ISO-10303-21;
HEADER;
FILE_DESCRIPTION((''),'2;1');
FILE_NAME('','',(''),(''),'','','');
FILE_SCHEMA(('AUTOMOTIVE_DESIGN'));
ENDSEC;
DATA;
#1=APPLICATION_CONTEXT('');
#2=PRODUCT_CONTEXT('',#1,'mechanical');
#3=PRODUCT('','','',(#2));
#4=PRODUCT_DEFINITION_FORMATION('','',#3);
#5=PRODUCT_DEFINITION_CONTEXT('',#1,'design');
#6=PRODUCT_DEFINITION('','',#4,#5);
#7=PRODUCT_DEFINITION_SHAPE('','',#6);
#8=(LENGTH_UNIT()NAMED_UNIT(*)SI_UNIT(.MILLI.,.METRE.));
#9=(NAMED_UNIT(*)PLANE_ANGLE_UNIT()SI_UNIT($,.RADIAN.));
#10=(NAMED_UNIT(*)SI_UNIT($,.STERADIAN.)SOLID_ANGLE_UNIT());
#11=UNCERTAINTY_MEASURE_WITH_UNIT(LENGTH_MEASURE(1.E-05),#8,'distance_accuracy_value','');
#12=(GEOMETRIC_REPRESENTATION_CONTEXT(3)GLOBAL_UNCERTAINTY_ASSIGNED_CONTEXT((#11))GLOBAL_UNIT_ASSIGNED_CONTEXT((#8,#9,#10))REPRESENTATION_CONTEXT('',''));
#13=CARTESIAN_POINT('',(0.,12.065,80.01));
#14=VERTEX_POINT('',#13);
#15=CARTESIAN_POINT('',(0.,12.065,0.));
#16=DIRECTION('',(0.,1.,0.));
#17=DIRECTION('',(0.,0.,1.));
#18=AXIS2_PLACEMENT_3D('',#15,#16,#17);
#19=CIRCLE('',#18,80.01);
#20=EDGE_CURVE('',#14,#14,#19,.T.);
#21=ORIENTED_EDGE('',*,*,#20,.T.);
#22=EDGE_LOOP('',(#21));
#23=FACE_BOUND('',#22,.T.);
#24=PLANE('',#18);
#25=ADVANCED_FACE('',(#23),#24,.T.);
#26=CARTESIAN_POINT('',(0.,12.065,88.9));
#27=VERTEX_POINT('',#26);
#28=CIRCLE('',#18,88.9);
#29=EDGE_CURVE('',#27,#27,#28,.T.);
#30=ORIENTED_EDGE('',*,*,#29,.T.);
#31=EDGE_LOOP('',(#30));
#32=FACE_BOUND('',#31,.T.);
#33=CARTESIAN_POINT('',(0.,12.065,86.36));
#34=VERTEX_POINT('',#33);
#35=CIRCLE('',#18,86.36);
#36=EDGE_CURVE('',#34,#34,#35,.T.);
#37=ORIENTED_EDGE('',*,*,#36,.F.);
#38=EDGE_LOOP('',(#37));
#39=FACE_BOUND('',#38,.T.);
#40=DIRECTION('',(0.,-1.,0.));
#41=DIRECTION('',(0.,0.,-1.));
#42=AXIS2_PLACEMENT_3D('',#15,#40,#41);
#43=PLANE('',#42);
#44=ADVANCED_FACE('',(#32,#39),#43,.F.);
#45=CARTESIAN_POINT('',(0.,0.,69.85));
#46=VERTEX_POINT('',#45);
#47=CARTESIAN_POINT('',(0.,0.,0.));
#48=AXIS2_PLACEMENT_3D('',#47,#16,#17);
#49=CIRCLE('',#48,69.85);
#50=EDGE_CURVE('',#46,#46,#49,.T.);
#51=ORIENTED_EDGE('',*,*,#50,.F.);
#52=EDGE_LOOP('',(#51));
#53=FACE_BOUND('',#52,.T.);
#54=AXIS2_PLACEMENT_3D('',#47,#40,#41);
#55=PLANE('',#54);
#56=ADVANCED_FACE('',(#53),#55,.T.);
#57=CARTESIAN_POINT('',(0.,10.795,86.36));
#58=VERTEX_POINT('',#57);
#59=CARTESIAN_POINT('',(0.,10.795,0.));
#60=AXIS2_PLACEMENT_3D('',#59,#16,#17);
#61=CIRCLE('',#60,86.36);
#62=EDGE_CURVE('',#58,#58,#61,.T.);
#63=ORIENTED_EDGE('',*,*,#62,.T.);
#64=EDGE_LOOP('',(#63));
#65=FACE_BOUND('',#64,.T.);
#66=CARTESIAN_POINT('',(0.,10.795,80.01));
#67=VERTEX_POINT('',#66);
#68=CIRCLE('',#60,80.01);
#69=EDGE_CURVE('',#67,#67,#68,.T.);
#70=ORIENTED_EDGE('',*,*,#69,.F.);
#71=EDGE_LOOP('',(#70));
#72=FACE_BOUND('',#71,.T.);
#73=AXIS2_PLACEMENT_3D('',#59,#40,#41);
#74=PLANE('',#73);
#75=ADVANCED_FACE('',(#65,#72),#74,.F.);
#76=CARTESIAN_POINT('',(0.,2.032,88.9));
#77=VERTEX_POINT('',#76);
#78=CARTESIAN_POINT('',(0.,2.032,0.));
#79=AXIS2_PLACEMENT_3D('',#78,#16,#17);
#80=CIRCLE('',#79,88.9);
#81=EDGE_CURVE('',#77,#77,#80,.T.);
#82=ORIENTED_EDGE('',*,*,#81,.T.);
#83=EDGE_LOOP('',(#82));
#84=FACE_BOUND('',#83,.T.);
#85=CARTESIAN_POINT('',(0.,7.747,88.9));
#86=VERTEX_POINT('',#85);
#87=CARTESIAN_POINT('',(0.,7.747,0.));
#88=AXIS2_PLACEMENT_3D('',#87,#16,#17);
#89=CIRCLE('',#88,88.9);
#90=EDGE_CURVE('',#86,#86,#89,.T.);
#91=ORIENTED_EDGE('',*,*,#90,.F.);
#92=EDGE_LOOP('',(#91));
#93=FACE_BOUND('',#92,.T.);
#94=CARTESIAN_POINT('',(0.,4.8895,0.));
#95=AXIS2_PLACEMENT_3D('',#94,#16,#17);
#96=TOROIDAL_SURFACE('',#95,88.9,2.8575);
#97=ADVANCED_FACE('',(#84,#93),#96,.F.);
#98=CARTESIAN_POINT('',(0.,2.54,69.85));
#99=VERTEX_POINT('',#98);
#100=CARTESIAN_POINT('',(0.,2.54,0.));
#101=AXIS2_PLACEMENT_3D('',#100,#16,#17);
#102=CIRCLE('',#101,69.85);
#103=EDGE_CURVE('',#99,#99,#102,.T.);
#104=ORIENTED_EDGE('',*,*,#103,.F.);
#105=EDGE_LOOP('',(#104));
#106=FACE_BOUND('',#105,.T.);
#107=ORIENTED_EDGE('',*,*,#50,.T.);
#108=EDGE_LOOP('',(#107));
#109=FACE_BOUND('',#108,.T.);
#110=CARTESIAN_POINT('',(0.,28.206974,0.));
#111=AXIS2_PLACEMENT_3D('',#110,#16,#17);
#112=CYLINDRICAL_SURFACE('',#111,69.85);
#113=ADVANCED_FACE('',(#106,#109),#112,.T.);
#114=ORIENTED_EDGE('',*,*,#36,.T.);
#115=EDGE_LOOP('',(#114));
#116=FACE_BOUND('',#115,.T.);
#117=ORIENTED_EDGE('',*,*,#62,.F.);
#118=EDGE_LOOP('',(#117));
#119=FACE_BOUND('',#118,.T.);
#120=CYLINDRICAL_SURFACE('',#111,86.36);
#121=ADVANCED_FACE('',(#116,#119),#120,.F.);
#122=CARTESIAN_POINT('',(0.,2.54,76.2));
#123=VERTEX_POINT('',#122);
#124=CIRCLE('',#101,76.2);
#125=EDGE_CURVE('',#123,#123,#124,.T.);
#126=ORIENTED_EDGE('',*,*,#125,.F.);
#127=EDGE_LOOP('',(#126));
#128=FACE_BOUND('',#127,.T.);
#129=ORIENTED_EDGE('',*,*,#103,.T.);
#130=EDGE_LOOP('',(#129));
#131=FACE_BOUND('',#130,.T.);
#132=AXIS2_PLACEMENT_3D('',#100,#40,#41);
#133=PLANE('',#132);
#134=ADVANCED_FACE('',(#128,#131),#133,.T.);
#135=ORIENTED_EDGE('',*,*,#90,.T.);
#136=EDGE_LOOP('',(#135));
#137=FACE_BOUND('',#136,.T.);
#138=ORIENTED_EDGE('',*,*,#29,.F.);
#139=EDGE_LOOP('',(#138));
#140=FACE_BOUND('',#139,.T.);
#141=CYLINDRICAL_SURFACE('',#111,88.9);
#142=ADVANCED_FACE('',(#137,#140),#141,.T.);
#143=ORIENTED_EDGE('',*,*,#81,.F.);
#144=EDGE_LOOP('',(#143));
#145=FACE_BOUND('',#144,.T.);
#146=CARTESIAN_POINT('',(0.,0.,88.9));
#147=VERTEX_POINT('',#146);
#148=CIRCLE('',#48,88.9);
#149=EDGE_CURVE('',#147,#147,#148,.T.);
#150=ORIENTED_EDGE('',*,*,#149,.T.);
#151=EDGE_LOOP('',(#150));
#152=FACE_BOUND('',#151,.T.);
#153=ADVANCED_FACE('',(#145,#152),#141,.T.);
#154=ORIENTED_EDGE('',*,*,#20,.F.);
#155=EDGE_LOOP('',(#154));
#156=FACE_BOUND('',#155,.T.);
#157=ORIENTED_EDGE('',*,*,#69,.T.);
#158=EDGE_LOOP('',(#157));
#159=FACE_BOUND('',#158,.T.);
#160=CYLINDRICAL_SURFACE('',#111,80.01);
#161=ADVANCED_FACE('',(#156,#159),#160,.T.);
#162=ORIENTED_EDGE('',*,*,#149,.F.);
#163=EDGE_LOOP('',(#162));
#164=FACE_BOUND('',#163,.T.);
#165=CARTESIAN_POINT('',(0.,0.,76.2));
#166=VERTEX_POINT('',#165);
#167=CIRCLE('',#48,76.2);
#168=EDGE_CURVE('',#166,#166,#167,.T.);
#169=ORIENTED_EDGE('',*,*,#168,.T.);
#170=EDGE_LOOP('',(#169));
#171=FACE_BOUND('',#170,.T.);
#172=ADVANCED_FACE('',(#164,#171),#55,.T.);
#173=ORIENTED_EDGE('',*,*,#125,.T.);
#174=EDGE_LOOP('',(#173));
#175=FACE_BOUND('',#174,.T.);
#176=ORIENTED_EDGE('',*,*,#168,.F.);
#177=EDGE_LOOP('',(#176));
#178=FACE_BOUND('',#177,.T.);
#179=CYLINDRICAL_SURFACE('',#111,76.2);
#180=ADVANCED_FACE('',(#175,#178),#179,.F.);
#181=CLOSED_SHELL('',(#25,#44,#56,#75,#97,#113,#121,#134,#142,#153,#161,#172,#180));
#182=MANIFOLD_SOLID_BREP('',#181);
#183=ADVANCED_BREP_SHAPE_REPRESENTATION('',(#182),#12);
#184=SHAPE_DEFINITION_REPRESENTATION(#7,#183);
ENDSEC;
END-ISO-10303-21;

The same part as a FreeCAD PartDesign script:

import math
import FreeCAD as App
import Part
import Sketcher
from FreeCAD import Vector
Q = App.Units.Quantity

doc = App.newDocument("Part")
params = doc.addObject("Spreadsheet::Sheet", "Params")
for row, (alias, value) in enumerate([
    ("sketch1_width", "0.1 in"),
    ("sketch1_width2", "0.5 in"),
    ("sketch1_width3", "0.25 in"),
    ("sketch1_height", "0.17 in"),
    ("sketch1_height2", "0.05 in"),
    ("revolution_angle", "360 deg"),
    ("sketch2_diameter", "0.5 in"),
    ("sketch3_diameter", "2 in"),
    ("sketch3_diameter2", "1 in"),
    ("sketch4_diameter", "0.45 in"),
    ("sketch5_diameter", "1 in"),
    ("sketch5_diameter2", "2 in"),
    ("sketch5_diameter3", "0.5 in"),
    ("sketch5_diameter4", "0.45 in"),
    ("pad1_length", "0.475 in"),
], start=1):
    params.set(f"A{row}", alias)
    params.set(f"B{row}", "=" + value)
    params.setAlias(f"B{row}", alias)

body = doc.addObject("PartDesign::Body", "Body")

sketch1 = body.newObject("Sketcher::SketchObject", "Sketch")
sketch1.AttachmentSupport = (doc.getObject("XY_Plane"), [""])
sketch1.MapMode = "FlatFace"
sketch1.addGeometry([
    Part.ArcOfCircle(Part.Circle(Vector(88.9, 4.9, 0), Vector(0, 0, 1), 2.9), math.radians(90), math.radians(270)),
    Part.LineSegment(Vector(88.9, 7.7, 0), Vector(88.9, 12.1, 0)),
    Part.LineSegment(Vector(88.9, 12.1, 0), Vector(86.4, 12.1, 0)),
    Part.LineSegment(Vector(86.4, 12.1, 0), Vector(86.4, 10.8, 0)),
    Part.LineSegment(Vector(86.4, 10.8, 0), Vector(80, 10.8, 0)),
    Part.LineSegment(Vector(80, 10.8, 0), Vector(80, 12.1, 0)),
    Part.LineSegment(Vector(80, 12.1, 0), Vector(0, 12.1, 0)),
    Part.LineSegment(Vector(0, 12.1, 0), Vector(0, 0, 0)),
    Part.LineSegment(Vector(0, 0, 0), Vector(69.8, 0, 0)),
    Part.LineSegment(Vector(69.8, 0, 0), Vector(69.8, 2.5, 0)),
    Part.LineSegment(Vector(69.8, 2.5, 0), Vector(76.2, 2.5, 0)),
    Part.LineSegment(Vector(76.2, 2.5, 0), Vector(76.2, 0, 0)),
    Part.LineSegment(Vector(76.2, 0, 0), Vector(88.9, 0, 0)),
    Part.LineSegment(Vector(88.9, 0, 0), Vector(88.9, 2, 0)),
], False)
sketch1.addConstraint([
    Sketcher.Constraint("Coincident", 0, 1, 1, 1),
    Sketcher.Constraint("Coincident", 1, 2, 2, 1),
    Sketcher.Constraint("Coincident", 2, 2, 3, 1),
    Sketcher.Constraint("Coincident", 3, 2, 4, 1),
    Sketcher.Constraint("Coincident", 4, 2, 5, 1),
    Sketcher.Constraint("Coincident", 5, 2, 6, 1),
    Sketcher.Constraint("Coincident", 6, 2, 7, 1),
    Sketcher.Constraint("Coincident", 7, 2, 8, 1),
    Sketcher.Constraint("Coincident", 8, 2, 9, 1),
    Sketcher.Constraint("Coincident", 9, 2, 10, 1),
    Sketcher.Constraint("Coincident", 10, 2, 11, 1),
    Sketcher.Constraint("Coincident", 11, 2, 12, 1),
    Sketcher.Constraint("Coincident", 12, 2, 13, 1),
    Sketcher.Constraint("Coincident", 13, 2, 0, 2),
    Sketcher.Constraint("Vertical", 1),
    Sketcher.Constraint("Horizontal", 2),
    Sketcher.Constraint("Vertical", 3),
    Sketcher.Constraint("Horizontal", 4),
    Sketcher.Constraint("Vertical", 5),
    Sketcher.Constraint("Horizontal", 6),
    Sketcher.Constraint("Vertical", 7),
    Sketcher.Constraint("Horizontal", 8),
    Sketcher.Constraint("Vertical", 9),
    Sketcher.Constraint("Horizontal", 10),
    Sketcher.Constraint("Vertical", 11),
    Sketcher.Constraint("Horizontal", 12),
    Sketcher.Constraint("Vertical", 13),
    Sketcher.Constraint("Coincident", 7, 2, -1, 1),
    Sketcher.Constraint("PointOnObject", 11, 2, -1),
    Sketcher.Constraint("Horizontal", 2, 2, 5, 2),
    Sketcher.Constraint("Vertical", 1, 2, 12, 2),
    Sketcher.Constraint("Equal", 4, 10),
    Sketcher.Constraint("Equal", 2, 9),
    Sketcher.Constraint("DistanceX", 2, 2, 2, 1, Q("0.1 in")),
    Sketcher.Constraint("DistanceX", 12, 1, 12, 2, Q("0.5 in")),
    Sketcher.Constraint("DistanceX", -1, 1, 10, 2, Q("3 in")),
    Sketcher.Constraint("DistanceX", 4, 2, 4, 1, Q("0.25 in")),
    Sketcher.Constraint("DistanceY", 1, 1, 1, 2, Q("0.17 in")),
    Sketcher.Constraint("DistanceY", 3, 2, 3, 1, Q("0.05 in")),
    Sketcher.Constraint("DistanceY", 13, 1, 13, 2, Q("0.08 in")),
    Sketcher.Constraint("DistanceX", -1, 1, 0, 3, Q("3.5 in")),
    Sketcher.Constraint("Radius", 0, Q("0.1125 in")),
])
sketch1.setExpression("Constraints[33]", "Params.sketch1_width")
sketch1.setExpression("Constraints[34]", "Params.sketch1_width2")
sketch1.setExpression("Constraints[36]", "Params.sketch1_width3")
sketch1.setExpression("Constraints[37]", "Params.sketch1_height")
sketch1.setExpression("Constraints[38]", "Params.sketch1_height2")
revolution = body.newObject("PartDesign::Revolution", "Revolution")
revolution.Profile = sketch1
revolution.ReferenceAxis = (sketch1, ["V_Axis"])
revolution.setExpression("Angle", "Params.revolution_angle")

sketch2 = body.newObject("Sketcher::SketchObject", "Sketch001")
sketch2.AttachmentSupport = (doc.getObject("XZ_Plane"), [""])
sketch2.MapMode = "FlatFace"
sketch2.AttachmentOffset = App.Placement(Vector(0, 0, -0.475 * 25.4), App.Rotation())
sketch2.addGeometry([
    Part.Circle(Vector(-25, 48, 0), Vector(0, 0, 1), 6),
    Part.Circle(Vector(25, 48, 0), Vector(0, 0, 1), 6),
], False)
sketch2.addConstraint([
    Sketcher.Constraint("Equal", 0, 1),
    Sketcher.Constraint("Symmetric", 0, 3, 1, 3, -2),
    Sketcher.Constraint("Diameter", 0, Q("0.5 in")),
    Sketcher.Constraint("DistanceX", 0, 3, -1, 1, Q("1 in")),
    Sketcher.Constraint("DistanceY", -1, 1, 0, 3, Q("1.88 in")),
])
sketch2.setExpression("Constraints[2]", "Params.sketch2_diameter")
pocket1 = body.newObject("PartDesign::Pocket", "Pocket")
pocket1.Profile = sketch2
pocket1.Type = "ThroughAll"
pocket1.Reversed = True

sketch3 = body.newObject("Sketcher::SketchObject", "Sketch002")
sketch3.AttachmentSupport = (doc.getObject("XZ_Plane"), [""])
sketch3.MapMode = "FlatFace"
sketch3.AttachmentOffset = App.Placement(Vector(0, 0, -0.475 * 25.4), App.Rotation())
sketch3.addGeometry([
    Part.Circle(Vector(0, -38, 0), Vector(0, 0, 1), 25),
    Part.Circle(Vector(25, 0, 0), Vector(0, 0, 1), 13),
    Part.Circle(Vector(-25, 0, 0), Vector(0, 0, 1), 13),
], False)
sketch3.addConstraint([
    Sketcher.Constraint("Equal", 1, 2),
    Sketcher.Constraint("Symmetric", 1, 3, 2, 3, -1, 1),
    Sketcher.Constraint("PointOnObject", 0, 3, -2),
    Sketcher.Constraint("PointOnObject", 1, 3, -1),
    Sketcher.Constraint("Diameter", 0, Q("2 in")),
    Sketcher.Constraint("Diameter", 1, Q("1 in")),
    Sketcher.Constraint("DistanceX", -1, 1, 1, 3, Q("1 in")),
    Sketcher.Constraint("DistanceY", 0, 3, -1, 1, Q("1.5 in")),
])
sketch3.setExpression("Constraints[4]", "Params.sketch3_diameter")
sketch3.setExpression("Constraints[5]", "Params.sketch3_diameter2")
pocket2 = body.newObject("PartDesign::Pocket", "Pocket001")
pocket2.Profile = sketch3
pocket2.Type = "ThroughAll"
pocket2.Reversed = True

sketch4 = body.newObject("Sketcher::SketchObject", "Sketch003")
sketch4.AttachmentSupport = (doc.getObject("XZ_Plane"), [""])
sketch4.MapMode = "FlatFace"
sketch4.AttachmentOffset = App.Placement(Vector(0, 0, -0.475 * 25.4), App.Rotation())
sketch4.addGeometry([
    Part.Circle(Vector(51, 25, 0), Vector(0, 0, 1), 6),
    Part.Circle(Vector(51, -25, 0), Vector(0, 0, 1), 6),
    Part.Circle(Vector(-51, 25, 0), Vector(0, 0, 1), 6),
    Part.Circle(Vector(-51, -25, 0), Vector(0, 0, 1), 6),
], False)
sketch4.addConstraint([
    Sketcher.Constraint("Equal", 0, 1),
    Sketcher.Constraint("Equal", 1, 2),
    Sketcher.Constraint("Equal", 2, 3),
    Sketcher.Constraint("Symmetric", 1, 3, 2, 3, -1, 1),
    Sketcher.Constraint("Symmetric", 0, 3, 3, 3, -1, 1),
    Sketcher.Constraint("Symmetric", 0, 3, 2, 3, -2),
    Sketcher.Constraint("Diameter", 0, Q("0.45 in")),
    Sketcher.Constraint("DistanceX", -1, 1, 0, 3, Q("2 in")),
    Sketcher.Constraint("DistanceY", -1, 1, 0, 3, Q("1 in")),
])
sketch4.setExpression("Constraints[6]", "Params.sketch4_diameter")
pocket3 = body.newObject("PartDesign::Pocket", "Pocket002")
pocket3.Profile = sketch4
pocket3.Type = "ThroughAll"
pocket3.Reversed = True

sketch5 = body.newObject("Sketcher::SketchObject", "Sketch004")
sketch5.AttachmentSupport = (doc.getObject("XZ_Plane"), [""])
sketch5.MapMode = "FlatFace"
sketch5.AttachmentOffset = App.Placement(Vector(0, 0, -0.475 * 25.4), App.Rotation())
sketch5.addGeometry([
    Part.Circle(Vector(-25, 48, 0), Vector(0, 0, 1), 6),
    Part.Circle(Vector(-51, 25, 0), Vector(0, 0, 1), 6),
    Part.Circle(Vector(-25, 0, 0), Vector(0, 0, 1), 13),
    Part.Circle(Vector(0, -38, 0), Vector(0, 0, 1), 25),
    Part.Circle(Vector(-51, -25, 0), Vector(0, 0, 1), 6),
    Part.Circle(Vector(51, -25, 0), Vector(0, 0, 1), 6),
    Part.Circle(Vector(25, 0, 0), Vector(0, 0, 1), 13),
    Part.Circle(Vector(25, 48, 0), Vector(0, 0, 1), 6),
    Part.Circle(Vector(51, 25, 0), Vector(0, 0, 1), 6),
], False)
sketch5.addConstraint([
    Sketcher.Constraint("Equal", 1, 4),
    Sketcher.Constraint("Equal", 4, 5),
    Sketcher.Constraint("Equal", 2, 6),
    Sketcher.Constraint("Equal", 0, 7),
    Sketcher.Constraint("Equal", 5, 8),
    Sketcher.Constraint("Symmetric", 1, 3, 5, 3, -1, 1),
    Sketcher.Constraint("Symmetric", 2, 3, 6, 3, -1, 1),
    Sketcher.Constraint("Symmetric", 4, 3, 8, 3, -1, 1),
    Sketcher.Constraint("Symmetric", 4, 3, 5, 3, -2),
    Sketcher.Constraint("Symmetric", 0, 3, 7, 3, -2),
    Sketcher.Constraint("PointOnObject", 2, 3, -1),
    Sketcher.Constraint("PointOnObject", 3, 3, -2),
    Sketcher.Constraint("Vertical", 0, 3, 2, 3),
    Sketcher.Constraint("Diameter", 2, Q("1 in")),
    Sketcher.Constraint("Diameter", 3, Q("2 in")),
    Sketcher.Constraint("Diameter", 0, Q("0.5 in")),
    Sketcher.Constraint("Diameter", 1, Q("0.45 in")),
    Sketcher.Constraint("DistanceX", 0, 3, -1, 1, Q("1 in")),
    Sketcher.Constraint("DistanceX", 1, 3, -1, 1, Q("2 in")),
    Sketcher.Constraint("DistanceY", -1, 1, 1, 3, Q("1 in")),
    Sketcher.Constraint("DistanceY", 3, 3, -1, 1, Q("1.5 in")),
    Sketcher.Constraint("DistanceY", -1, 1, 0, 3, Q("1.88 in")),
])
sketch5.setExpression("Constraints[13]", "Params.sketch5_diameter")
sketch5.setExpression("Constraints[14]", "Params.sketch5_diameter2")
sketch5.setExpression("Constraints[15]", "Params.sketch5_diameter3")
sketch5.setExpression("Constraints[16]", "Params.sketch5_diameter4")
pad1 = body.newObject("PartDesign::Pad", "Pad")
pad1.Profile = sketch5
pad1.setExpression("Length", "Params.pad1_length")

doc.recompute()
